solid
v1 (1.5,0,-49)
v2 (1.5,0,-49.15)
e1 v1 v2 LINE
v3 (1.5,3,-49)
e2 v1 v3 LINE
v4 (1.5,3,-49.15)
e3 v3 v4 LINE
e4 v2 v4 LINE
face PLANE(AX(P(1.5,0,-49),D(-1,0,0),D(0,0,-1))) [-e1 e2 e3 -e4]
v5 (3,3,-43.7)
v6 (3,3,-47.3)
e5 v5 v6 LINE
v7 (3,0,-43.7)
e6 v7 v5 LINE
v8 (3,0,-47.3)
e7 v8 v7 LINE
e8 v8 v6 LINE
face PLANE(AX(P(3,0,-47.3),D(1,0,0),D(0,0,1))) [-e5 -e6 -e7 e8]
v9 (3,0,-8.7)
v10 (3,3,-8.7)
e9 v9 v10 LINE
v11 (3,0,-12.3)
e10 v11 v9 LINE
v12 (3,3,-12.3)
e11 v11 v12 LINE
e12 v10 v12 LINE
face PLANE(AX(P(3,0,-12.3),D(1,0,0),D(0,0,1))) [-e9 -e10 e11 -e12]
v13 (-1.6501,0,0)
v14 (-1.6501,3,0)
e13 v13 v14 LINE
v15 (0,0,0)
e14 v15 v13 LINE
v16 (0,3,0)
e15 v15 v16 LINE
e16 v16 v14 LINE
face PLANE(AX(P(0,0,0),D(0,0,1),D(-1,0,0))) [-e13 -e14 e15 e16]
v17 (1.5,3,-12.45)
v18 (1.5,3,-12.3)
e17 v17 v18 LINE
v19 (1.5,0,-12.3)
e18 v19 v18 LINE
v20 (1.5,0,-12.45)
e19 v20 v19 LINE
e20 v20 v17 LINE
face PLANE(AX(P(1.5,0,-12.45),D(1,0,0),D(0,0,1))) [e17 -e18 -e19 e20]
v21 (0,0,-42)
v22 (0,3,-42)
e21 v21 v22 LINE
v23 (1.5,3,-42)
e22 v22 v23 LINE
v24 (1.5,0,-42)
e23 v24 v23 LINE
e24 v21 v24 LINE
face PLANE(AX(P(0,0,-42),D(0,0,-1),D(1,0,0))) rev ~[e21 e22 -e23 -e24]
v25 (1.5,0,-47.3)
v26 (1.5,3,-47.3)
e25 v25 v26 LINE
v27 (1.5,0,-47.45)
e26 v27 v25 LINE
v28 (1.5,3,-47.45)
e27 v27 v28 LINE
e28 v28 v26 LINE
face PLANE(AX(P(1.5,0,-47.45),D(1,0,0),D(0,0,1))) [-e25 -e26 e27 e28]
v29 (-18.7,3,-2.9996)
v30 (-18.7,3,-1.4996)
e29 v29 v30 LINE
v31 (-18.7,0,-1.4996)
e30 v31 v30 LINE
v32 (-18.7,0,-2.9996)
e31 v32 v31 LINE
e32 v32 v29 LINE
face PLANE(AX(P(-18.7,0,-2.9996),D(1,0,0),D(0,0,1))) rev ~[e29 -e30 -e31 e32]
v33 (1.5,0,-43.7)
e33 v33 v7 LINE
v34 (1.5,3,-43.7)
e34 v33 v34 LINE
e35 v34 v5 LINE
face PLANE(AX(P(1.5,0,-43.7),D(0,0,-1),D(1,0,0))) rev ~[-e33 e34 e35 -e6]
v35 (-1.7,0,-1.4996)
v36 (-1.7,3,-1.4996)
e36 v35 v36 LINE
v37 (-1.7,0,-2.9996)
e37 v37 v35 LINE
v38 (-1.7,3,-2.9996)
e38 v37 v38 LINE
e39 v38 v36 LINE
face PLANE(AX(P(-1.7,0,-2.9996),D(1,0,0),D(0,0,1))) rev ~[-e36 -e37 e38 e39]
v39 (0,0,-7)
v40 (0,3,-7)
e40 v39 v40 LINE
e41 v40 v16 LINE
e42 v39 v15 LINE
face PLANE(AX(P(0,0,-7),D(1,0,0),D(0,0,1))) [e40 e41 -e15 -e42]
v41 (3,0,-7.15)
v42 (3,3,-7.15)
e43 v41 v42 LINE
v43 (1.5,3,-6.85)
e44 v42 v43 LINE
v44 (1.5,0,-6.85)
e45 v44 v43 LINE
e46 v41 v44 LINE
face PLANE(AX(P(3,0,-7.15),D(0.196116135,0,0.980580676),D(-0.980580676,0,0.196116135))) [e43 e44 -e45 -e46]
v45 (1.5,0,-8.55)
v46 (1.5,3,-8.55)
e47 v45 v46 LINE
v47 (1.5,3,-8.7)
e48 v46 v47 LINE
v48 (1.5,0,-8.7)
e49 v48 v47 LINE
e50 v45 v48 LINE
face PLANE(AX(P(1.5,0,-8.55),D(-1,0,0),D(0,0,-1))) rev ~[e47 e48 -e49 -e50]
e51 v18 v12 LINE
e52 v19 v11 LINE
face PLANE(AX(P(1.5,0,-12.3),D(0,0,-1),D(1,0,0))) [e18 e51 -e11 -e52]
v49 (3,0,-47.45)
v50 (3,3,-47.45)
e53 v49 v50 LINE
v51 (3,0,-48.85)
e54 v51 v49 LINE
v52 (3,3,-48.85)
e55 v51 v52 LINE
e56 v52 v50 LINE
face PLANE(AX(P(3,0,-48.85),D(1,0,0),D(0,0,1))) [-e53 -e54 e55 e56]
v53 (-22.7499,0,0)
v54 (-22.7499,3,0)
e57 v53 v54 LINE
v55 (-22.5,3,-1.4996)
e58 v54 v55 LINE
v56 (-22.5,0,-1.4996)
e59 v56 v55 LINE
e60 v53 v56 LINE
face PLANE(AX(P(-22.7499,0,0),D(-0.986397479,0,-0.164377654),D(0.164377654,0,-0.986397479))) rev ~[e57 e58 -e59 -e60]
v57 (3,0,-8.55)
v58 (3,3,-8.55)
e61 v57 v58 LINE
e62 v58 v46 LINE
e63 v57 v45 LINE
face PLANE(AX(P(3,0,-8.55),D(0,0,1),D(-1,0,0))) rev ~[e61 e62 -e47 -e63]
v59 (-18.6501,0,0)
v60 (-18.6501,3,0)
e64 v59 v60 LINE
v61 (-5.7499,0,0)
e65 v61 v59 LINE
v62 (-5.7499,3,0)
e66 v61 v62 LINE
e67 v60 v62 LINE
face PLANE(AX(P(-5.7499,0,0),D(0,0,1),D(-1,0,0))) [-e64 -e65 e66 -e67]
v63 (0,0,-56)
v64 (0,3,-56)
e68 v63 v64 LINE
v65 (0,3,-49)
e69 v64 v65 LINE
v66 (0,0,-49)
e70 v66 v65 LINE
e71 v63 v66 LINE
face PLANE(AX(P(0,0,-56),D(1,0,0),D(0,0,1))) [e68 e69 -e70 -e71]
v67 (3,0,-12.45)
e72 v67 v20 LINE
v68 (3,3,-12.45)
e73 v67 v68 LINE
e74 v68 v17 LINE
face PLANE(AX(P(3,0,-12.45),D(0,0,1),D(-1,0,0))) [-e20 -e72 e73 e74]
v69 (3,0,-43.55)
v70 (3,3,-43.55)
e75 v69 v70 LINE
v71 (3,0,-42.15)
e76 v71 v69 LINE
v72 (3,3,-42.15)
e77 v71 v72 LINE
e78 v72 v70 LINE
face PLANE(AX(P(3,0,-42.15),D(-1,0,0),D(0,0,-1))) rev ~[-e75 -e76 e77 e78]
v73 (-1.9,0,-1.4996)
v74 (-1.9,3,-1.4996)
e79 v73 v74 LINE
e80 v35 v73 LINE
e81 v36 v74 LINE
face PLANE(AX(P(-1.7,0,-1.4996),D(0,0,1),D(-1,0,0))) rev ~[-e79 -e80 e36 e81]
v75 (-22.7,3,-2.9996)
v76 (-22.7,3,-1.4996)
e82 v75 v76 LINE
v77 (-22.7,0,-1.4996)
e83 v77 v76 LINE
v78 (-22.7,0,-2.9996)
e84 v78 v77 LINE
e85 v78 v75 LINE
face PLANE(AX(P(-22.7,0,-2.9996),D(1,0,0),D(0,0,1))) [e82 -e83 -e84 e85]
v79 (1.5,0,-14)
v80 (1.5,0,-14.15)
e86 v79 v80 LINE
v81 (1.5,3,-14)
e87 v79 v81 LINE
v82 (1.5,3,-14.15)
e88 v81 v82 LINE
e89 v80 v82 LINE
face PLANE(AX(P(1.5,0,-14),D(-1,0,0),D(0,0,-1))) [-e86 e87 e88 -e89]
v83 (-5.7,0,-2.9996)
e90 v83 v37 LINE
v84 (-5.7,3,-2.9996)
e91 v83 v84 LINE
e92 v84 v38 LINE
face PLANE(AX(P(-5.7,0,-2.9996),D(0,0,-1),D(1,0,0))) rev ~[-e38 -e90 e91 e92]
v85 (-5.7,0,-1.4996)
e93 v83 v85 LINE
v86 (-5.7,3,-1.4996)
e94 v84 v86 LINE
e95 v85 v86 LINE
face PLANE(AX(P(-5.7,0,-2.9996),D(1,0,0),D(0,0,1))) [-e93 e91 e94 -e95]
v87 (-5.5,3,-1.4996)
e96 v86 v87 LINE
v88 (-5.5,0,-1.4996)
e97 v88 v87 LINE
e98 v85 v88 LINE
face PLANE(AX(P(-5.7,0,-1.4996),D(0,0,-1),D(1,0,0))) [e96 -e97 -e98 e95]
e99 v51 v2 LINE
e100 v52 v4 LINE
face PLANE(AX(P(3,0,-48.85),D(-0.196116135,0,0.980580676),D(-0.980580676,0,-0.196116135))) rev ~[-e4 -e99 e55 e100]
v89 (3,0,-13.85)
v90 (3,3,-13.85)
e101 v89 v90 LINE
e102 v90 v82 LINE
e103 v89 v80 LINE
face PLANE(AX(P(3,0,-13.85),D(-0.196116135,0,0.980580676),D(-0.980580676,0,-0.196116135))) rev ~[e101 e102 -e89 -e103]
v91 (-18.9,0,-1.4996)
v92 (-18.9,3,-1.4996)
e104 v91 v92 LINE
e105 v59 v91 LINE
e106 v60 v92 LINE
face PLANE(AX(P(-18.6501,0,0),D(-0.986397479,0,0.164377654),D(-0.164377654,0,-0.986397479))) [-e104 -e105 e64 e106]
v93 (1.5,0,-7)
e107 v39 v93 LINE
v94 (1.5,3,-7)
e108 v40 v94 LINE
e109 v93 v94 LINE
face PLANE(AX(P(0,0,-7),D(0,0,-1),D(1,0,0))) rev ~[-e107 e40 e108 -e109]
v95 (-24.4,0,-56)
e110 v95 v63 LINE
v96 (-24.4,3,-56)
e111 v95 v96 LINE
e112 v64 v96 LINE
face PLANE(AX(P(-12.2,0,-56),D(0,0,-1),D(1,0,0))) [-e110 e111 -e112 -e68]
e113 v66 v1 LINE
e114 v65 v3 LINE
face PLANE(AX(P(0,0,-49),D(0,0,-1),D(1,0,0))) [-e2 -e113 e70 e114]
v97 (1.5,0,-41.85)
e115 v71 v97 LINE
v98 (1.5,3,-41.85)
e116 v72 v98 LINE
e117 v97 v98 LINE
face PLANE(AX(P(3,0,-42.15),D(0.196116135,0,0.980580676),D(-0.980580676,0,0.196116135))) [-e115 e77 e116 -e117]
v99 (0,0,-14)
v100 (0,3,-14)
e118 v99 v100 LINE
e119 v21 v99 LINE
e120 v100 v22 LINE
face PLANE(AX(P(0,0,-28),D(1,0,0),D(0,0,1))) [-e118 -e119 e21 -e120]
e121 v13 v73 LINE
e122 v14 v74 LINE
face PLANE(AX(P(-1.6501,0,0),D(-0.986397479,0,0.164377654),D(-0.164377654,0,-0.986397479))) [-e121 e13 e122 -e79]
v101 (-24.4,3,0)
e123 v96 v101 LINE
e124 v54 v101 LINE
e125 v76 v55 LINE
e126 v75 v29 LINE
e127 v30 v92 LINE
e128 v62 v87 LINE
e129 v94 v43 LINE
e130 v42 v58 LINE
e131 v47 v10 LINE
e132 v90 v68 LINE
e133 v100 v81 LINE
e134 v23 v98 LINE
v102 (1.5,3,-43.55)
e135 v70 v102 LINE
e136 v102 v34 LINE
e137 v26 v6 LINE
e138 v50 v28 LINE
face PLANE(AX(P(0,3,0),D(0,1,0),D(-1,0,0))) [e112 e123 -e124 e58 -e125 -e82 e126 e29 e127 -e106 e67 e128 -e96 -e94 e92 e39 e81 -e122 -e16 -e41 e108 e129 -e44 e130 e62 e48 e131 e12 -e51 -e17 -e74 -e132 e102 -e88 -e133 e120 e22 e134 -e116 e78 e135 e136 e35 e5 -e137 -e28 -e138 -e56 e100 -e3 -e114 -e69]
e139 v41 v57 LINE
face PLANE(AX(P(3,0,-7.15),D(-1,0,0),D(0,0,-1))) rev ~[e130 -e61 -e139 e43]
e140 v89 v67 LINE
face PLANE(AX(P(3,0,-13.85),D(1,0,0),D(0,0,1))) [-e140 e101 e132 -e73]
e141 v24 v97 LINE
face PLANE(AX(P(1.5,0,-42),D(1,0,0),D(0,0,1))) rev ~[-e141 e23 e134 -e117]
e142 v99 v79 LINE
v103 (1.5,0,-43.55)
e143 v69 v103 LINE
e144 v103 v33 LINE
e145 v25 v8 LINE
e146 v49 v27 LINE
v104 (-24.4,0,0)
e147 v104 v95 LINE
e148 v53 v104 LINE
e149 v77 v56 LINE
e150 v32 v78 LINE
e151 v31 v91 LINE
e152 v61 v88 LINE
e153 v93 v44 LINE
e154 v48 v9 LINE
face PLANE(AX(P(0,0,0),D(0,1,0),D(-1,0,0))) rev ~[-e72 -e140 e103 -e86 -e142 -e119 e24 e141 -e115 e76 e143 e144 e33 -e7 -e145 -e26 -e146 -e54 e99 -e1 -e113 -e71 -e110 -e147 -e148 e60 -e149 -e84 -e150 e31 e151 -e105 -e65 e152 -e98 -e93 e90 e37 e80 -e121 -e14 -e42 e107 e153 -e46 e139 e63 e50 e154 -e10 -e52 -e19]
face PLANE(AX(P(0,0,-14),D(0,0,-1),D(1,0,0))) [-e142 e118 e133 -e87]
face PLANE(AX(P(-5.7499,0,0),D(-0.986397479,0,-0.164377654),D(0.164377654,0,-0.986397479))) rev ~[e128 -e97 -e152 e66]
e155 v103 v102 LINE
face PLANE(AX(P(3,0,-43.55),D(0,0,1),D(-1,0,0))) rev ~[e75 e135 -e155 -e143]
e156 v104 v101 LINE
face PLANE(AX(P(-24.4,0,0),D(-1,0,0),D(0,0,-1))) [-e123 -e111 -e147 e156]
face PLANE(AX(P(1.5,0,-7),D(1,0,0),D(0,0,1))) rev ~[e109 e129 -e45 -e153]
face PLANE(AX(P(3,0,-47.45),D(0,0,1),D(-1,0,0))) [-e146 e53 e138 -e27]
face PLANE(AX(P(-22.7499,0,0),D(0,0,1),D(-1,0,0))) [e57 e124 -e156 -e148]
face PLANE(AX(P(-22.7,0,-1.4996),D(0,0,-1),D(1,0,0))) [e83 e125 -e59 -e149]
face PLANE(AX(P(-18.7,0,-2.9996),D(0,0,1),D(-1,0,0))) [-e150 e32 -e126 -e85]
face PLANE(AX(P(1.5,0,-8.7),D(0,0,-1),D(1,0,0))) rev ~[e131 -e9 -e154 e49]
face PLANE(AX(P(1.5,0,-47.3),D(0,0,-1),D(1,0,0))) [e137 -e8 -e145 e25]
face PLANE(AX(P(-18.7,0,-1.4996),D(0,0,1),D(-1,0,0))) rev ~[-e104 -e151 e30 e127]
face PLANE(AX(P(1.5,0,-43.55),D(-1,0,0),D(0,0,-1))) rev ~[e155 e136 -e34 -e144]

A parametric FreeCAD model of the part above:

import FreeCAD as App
import Part
import Sketcher
from FreeCAD import Vector


def add_polygon(sketch, points):
    """Adds a closed chain of lines whose ends are joined by coincident constraints."""
    first, n = sketch.GeometryCount, len(points)
    for a, b in zip(points, points[1:] + points[:1]):
        sketch.addGeometry(Part.LineSegment(App.Vector(*a, 0), App.Vector(*b, 0)), False)
    for i in range(n):
        sketch.addConstraint(Sketcher.Constraint("Coincident", first + i, 2, first + (i + 1) % n, 1))

doc = App.newDocument("Part")
params = doc.addObject("Spreadsheet::Sheet", "Params")
for row, (alias, value) in enumerate([
    ("sketch1_width", "4 mm"),
    ("sketch1_height", "7 mm"),
    ("sketch1_height2", "56 mm"),
    ("sketch1_width2", "1.5 mm"),
    ("sketch1_width3", "24.4 mm"),
    ("pad1_length", "3 mm"),
], start=1):
    params.set(f"A{row}", alias)
    params.set(f"B{row}", "=" + value)
    params.setAlias(f"B{row}", alias)

body = doc.addObject("PartDesign::Body", "Body")

# Sketch on XZ plane
sketch1 = body.newObject("Sketcher::SketchObject", "Sketch")
sketch1.AttachmentSupport = (doc.getObject("XZ_Plane"), [""])
sketch1.MapMode = "FlatFace"
add_polygon(sketch1, [(-1.65, 0), (0, 0), (0, -7), (1.5, -7), (1.5, -6.85), (3, -7.15), (3, -8.55), (1.5, -8.55), (1.5, -8.7), (3, -8.7), (3, -12.3), (1.5, -12.3), (1.5, -12.45), (3, -12.45), (3, -13.85), (1.5, -14.15), (1.5, -14), (0, -14), (0, -42), (1.5, -42), (1.5, -41.85), (3, -42.15), (3, -43.55), (1.5, -43.55), (1.5, -43.7), (3, -43.7), (3, -47.3), (1.5, -47.3), (1.5, -47.45), (3, -47.45), (3, -48.85), (1.5, -49.15), (1.5, -49), (0, -49), (0, -56), (-24.4, -56), (-24.4, 0), (-22.75, 0), (-22.5, -1.5), (-22.7, -1.5), (-22.7, -3), (-18.7, -3), (-18.7, -1.5), (-18.9, -1.5), (-18.65, 0), (-5.75, 0), (-5.5, -1.5), (-5.7, -1.5), (-5.7, -3), (-1.7, -3), (-1.7, -1.5), (-1.9, -1.5)])  # lines 0-51
sketch1.addConstraint([
    Sketcher.Constraint("Horizontal", 0),
    Sketcher.Constraint("Vertical", 1),
    Sketcher.Constraint("Horizontal", 2),
    Sketcher.Constraint("Vertical", 3),
    Sketcher.Constraint("Vertical", 5),
    Sketcher.Constraint("Horizontal", 6),
    Sketcher.Constraint("Vertical", 7),
    Sketcher.Constraint("Horizontal", 8),
    Sketcher.Constraint("Vertical", 9),
    Sketcher.Constraint("Horizontal", 10),
    Sketcher.Constraint("Vertical", 11),
    Sketcher.Constraint("Horizontal", 12),
    Sketcher.Constraint("Vertical", 13),
    Sketcher.Constraint("Vertical", 15),
    Sketcher.Constraint("Horizontal", 16),
    Sketcher.Constraint("Vertical", 17),
    Sketcher.Constraint("Horizontal", 18),
    Sketcher.Constraint("Vertical", 19),
    Sketcher.Constraint("Vertical", 21),
    Sketcher.Constraint("Horizontal", 22),
    Sketcher.Constraint("Vertical", 23),
    Sketcher.Constraint("Horizontal", 24),
    Sketcher.Constraint("Vertical", 25),
    Sketcher.Constraint("Horizontal", 26),
    Sketcher.Constraint("Vertical", 27),
    Sketcher.Constraint("Horizontal", 28),
    Sketcher.Constraint("Vertical", 29),
    Sketcher.Constraint("Vertical", 31),
    Sketcher.Constraint("Horizontal", 32),
    Sketcher.Constraint("Vertical", 33),
    Sketcher.Constraint("Horizontal", 34),
    Sketcher.Constraint("Vertical", 35),
    Sketcher.Constraint("Horizontal", 36),
    Sketcher.Constraint("Horizontal", 38),
    Sketcher.Constraint("Vertical", 39),
    Sketcher.Constraint("Horizontal", 40),
    Sketcher.Constraint("Vertical", 41),
    Sketcher.Constraint("Horizontal", 42),
    Sketcher.Constraint("Horizontal", 44),
    Sketcher.Constraint("Horizontal", 46),
    Sketcher.Constraint("Vertical", 47),
    Sketcher.Constraint("Horizontal", 48),
    Sketcher.Constraint("Vertical", 49),
    Sketcher.Constraint("Horizontal", 50),
    Sketcher.Constraint("Coincident", 0, 2, -1, 1),
    Sketcher.Constraint("PointOnObject", 16, 2, -2),
    Sketcher.Constraint("PointOnObject", 32, 2, -2),
    Sketcher.Constraint("PointOnObject", 35, 2, -1),
    Sketcher.Constraint("PointOnObject", 43, 2, -1),
    Sketcher.Constraint("Parallel", 4, 20),
    Sketcher.Constraint("Parallel", 14, 30),
    Sketcher.Constraint("Parallel", 37, 45),
    Sketcher.Constraint("Parallel", 43, 51),
    Sketcher.Constraint("Horizontal", 38, 2, 41, 2),
    Sketcher.Constraint("Horizontal", 42, 2, 45, 2),
    Sketcher.Constraint("Horizontal", 40, 2, 47, 2),
    Sketcher.Constraint("Horizontal", 46, 2, 49, 2),
    Sketcher.Constraint("Vertical", 3, 2, 6, 2),
    Sketcher.Constraint("Vertical", 5, 2, 8, 2),
    Sketcher.Constraint("Vertical", 7, 2, 10, 2),
    Sketcher.Constraint("Vertical", 9, 2, 12, 2),
    Sketcher.Constraint("Vertical", 11, 2, 14, 2),
    Sketcher.Constraint("Vertical", 15, 2, 18, 2),
    Sketcher.Constraint("Vertical", 13, 2, 20, 2),
    Sketcher.Constraint("Vertical", 19, 2, 22, 2),
    Sketcher.Constraint("Vertical", 21, 2, 24, 2),
    Sketcher.Constraint("Vertical", 23, 2, 26, 2),
    Sketcher.Constraint("Vertical", 25, 2, 28, 2),
    Sketcher.Constraint("Vertical", 27, 2, 30, 2),
    Sketcher.Constraint("Equal", 2, 6),
    Sketcher.Constraint("Equal", 0, 36),
    Sketcher.Constraint("Equal", 38, 42),
    Sketcher.Constraint("Equal", 42, 46),
    Sketcher.Constraint("Equal", 40, 48),
    Sketcher.Constraint("Equal", 46, 50),
    Sketcher.Constraint("Equal", 3, 7),
    Sketcher.Constraint("Equal", 7, 11),
    Sketcher.Constraint("Equal", 5, 13),
    Sketcher.Constraint("Equal", 11, 15),
    Sketcher.Constraint("Equal", 15, 19),
    Sketcher.Constraint("Equal", 13, 21),
    Sketcher.Constraint("Equal", 19, 23),
    Sketcher.Constraint("Equal", 9, 25),
    Sketcher.Constraint("Equal", 23, 27),
    Sketcher.Constraint("Equal", 21, 29),
    Sketcher.Constraint("Equal", 27, 31),
    Sketcher.Constraint("Equal", 1, 33),
    Sketcher.Constraint("Equal", 32, 39),
    Sketcher.Constraint("Equal", 4, 14),
    Sketcher.Constraint("Equal", 37, 43),
    Sketcher.Constraint("DistanceX", 40, 1, 40, 2, 4.0),
    Sketcher.Constraint("DistanceY", 1, 2, 1, 1, 7.0),
    Sketcher.Constraint("DistanceY", 35, 1, 35, 2, 56.0),
    Sketcher.Constraint("DistanceX", 2, 1, 2, 2, 1.5),
    Sketcher.Constraint("DistanceX", 34, 2, 34, 1, 24.4),
    Sketcher.Constraint("DistanceX", 38, 2, 38, 1, 0.2),
    Sketcher.Constraint("DistanceY", 5, 2, 5, 1, 1.4),
    Sketcher.Constraint("DistanceX", 45, 2, 3, 2, 7.0),
    Sketcher.Constraint("DistanceY", 3, 1, 3, 2, 0.15),
    Sketcher.Constraint("DistanceY", 5, 2, 3, 2, 1.7),
    Sketcher.Constraint("DistanceY", 17, 2, 17, 1, 28.0),
    Sketcher.Constraint("DistanceX", 0, 1, 0, 2, 1.65),
    Sketcher.Constraint("DistanceY", 37, 2, -1, 1, 1.4996),
])
sketch1.setExpression("Constraints[142]", "Params.sketch1_width")
sketch1.setExpression("Constraints[143]", "Params.sketch1_height")
sketch1.setExpression("Constraints[144]", "Params.sketch1_height2")
sketch1.setExpression("Constraints[145]", "Params.sketch1_width2")
sketch1.setExpression("Constraints[146]", "Params.sketch1_width3")
pad1 = body.newObject("PartDesign::Pad", "Pad")
pad1.Profile = sketch1
pad1.setExpression("Length", "Params.pad1_length")
pad1.Reversed = True

doc.recompute()
